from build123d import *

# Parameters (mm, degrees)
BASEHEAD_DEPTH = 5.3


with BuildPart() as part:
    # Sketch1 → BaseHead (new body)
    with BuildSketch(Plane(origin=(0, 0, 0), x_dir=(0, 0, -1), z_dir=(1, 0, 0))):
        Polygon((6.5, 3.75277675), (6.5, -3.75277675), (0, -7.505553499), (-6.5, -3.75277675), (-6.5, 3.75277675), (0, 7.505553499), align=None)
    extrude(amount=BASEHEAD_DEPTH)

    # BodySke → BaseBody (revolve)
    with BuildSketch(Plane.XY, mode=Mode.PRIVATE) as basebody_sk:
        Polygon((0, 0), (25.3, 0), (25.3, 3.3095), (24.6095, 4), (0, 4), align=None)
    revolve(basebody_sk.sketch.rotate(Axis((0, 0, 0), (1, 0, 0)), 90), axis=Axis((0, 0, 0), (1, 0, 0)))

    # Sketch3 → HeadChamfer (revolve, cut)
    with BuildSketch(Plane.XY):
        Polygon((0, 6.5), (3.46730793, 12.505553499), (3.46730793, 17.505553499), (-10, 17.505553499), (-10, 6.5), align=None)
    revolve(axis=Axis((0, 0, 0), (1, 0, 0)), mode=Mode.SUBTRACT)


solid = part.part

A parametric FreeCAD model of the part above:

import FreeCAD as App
import Part
import Sketcher
from FreeCAD import Vector
Q = App.Units.Quantity


def add_polygon(sketch, points):
    """Adds a closed chain of lines whose ends are joined by coincident constraints."""
    first, n = sketch.GeometryCount, len(points)
    for a, b in zip(points, points[1:] + points[:1]):
        sketch.addGeometry(Part.LineSegment(App.Vector(*a, 0), App.Vector(*b, 0)), False)
    for i in range(n):
        sketch.addConstraint(Sketcher.Constraint("Coincident", first + i, 2, first + (i + 1) % n, 1))

doc = App.newDocument("Part")
params = doc.addObject("Spreadsheet::Sheet", "Params")
for row, (alias, value) in enumerate([
    ("pad1_length", "5.3 mm"),
    ("sketch2_height", "4 mm"),
    ("sketch2_width", "25.3 mm"),
    ("revolution_angle", "360 deg"),
    ("sketch3_width", "10 mm"),
    ("sketch3_height", "5 mm"),
    ("groove_angle", "360 deg"),
], start=1):
    params.set(f"A{row}", alias)
    params.set(f"B{row}", "=" + value)
    params.setAlias(f"B{row}", alias)

body = doc.addObject("PartDesign::Body", "Body")

sketch1 = doc.addObject("Sketcher::SketchObject", "Sketch")
body.addObject(sketch1)
sketch1.AttachmentSupport = (doc.YZ_Plane, [""])
sketch1.MapMode = "FlatFace"
add_polygon(sketch1, [(-4, -6), (4, -6), (8, 0), (4, 6), (-4, 6), (-8, 0)])
sketch1.addConstraint(Sketcher.Constraint("Horizontal", 0))
sketch1.addConstraint(Sketcher.Constraint("Horizontal", 3))
sketch1.addConstraint(Sketcher.Constraint("Symmetric", 0, 2, 3, 2, -1, 1))
sketch1.addConstraint(Sketcher.Constraint("Symmetric", 1, 2, 4, 2, -1, 1))
sketch1.addConstraint(Sketcher.Constraint("PointOnObject", 1, 2, -1))
sketch1.addConstraint(Sketcher.Constraint("Parallel", 2, 5))
sketch1.addConstraint(Sketcher.Constraint("Vertical", 0, 2, 2, 2))
sketch1.addConstraint(Sketcher.Constraint("Angle", 1, Q("60 deg")))
sketch1.addConstraint(Sketcher.Constraint("DistanceY", 0, 2, 2, 2, 13.0))
sketch1.addConstraint(Sketcher.Constraint("DistanceX", 0, 1, 0, 2, 7.505554))
pad1 = doc.addObject("PartDesign::Pad", "Pad")
body.addObject(pad1)
pad1.Profile = sketch1
pad1.setExpression("Length", "Params.pad1_length")

sketch2 = doc.addObject("Sketcher::SketchObject", "Sketch001")
body.addObject(sketch2)
sketch2.AttachmentSupport = (doc.XY_Plane, [""])
sketch2.MapMode = "FlatFace"
add_polygon(sketch2, [(0, 0), (25.3, 0), (25.3, 3.3), (24.6, 4), (0, 4)])
sketch2.addConstraint(Sketcher.Constraint("Horizontal", 0))
sketch2.addConstraint(Sketcher.Constraint("Vertical", 1))
sketch2.addConstraint(Sketcher.Constraint("Horizontal", 3))
sketch2.addConstraint(Sketcher.Constraint("Vertical", 4))
sketch2.addConstraint(Sketcher.Constraint("Coincident", 4, 2, -1, 1))
sketch2.addConstraint(Sketcher.Constraint("DistanceY", 4, 2, 4, 1, 4.0))
sketch2.addConstraint(Sketcher.Constraint("Angle", 2, Q("135 deg")))
sketch2.addConstraint(Sketcher.Constraint("DistanceX", 0, 1, 0, 2, 25.3))
sketch2.addConstraint(Sketcher.Constraint("DistanceX", 3, 2, 3, 1, 24.6095))
sketch2.setExpression("Constraints[10]", "Params.sketch2_height")
sketch2.setExpression("Constraints[12]", "Params.sketch2_width")
revolution = doc.addObject("PartDesign::Revolution", "Revolution")
body.addObject(revolution)
revolution.Profile = sketch2
revolution.ReferenceAxis = (sketch2, ["H_Axis"])
revolution.setExpression("Angle", "Params.revolution_angle")

sketch3 = doc.addObject("Sketcher::SketchObject", "Sketch002")
body.addObject(sketch3)
sketch3.AttachmentSupport = (doc.XY_Plane, [""])
sketch3.MapMode = "FlatFace"
add_polygon(sketch3, [(0, 6), (3, 13), (3, 18), (-10, 18), (-10, 6)])
sketch3.addConstraint(Sketcher.Constraint("Vertical", 1))
sketch3.addConstraint(Sketcher.Constraint("Horizontal", 2))
sketch3.addConstraint(Sketcher.Constraint("Vertical", 3))
sketch3.addConstraint(Sketcher.Constraint("Horizontal", 4))
sketch3.addConstraint(Sketcher.Constraint("PointOnObject", 4, 2, -2))
sketch3.addConstraint(Sketcher.Constraint("DistanceX", 4, 1, 4, 2, 10.0))
sketch3.addConstraint(Sketcher.Constraint("DistanceY", 1, 1, 1, 2, 5.0))
sketch3.addConstraint(Sketcher.Constraint("Angle", 0, Q("60 deg")))
sketch3.addConstraint(Sketcher.Constraint("DistanceY", -1, 1, 3, 2, 6.5))
sketch3.addConstraint(Sketcher.Constraint("DistanceX", 2, 2, 2, 1, 13.467308))
sketch3.setExpression("Constraints[10]", "Params.sketch3_width")
sketch3.setExpression("Constraints[11]", "Params.sketch3_height")
groove = doc.addObject("PartDesign::Groove", "Groove")
body.addObject(groove)
groove.Profile = sketch3
groove.ReferenceAxis = (sketch3, ["H_Axis"])
groove.setExpression("Angle", "Params.groove_angle")

doc.recompute()
